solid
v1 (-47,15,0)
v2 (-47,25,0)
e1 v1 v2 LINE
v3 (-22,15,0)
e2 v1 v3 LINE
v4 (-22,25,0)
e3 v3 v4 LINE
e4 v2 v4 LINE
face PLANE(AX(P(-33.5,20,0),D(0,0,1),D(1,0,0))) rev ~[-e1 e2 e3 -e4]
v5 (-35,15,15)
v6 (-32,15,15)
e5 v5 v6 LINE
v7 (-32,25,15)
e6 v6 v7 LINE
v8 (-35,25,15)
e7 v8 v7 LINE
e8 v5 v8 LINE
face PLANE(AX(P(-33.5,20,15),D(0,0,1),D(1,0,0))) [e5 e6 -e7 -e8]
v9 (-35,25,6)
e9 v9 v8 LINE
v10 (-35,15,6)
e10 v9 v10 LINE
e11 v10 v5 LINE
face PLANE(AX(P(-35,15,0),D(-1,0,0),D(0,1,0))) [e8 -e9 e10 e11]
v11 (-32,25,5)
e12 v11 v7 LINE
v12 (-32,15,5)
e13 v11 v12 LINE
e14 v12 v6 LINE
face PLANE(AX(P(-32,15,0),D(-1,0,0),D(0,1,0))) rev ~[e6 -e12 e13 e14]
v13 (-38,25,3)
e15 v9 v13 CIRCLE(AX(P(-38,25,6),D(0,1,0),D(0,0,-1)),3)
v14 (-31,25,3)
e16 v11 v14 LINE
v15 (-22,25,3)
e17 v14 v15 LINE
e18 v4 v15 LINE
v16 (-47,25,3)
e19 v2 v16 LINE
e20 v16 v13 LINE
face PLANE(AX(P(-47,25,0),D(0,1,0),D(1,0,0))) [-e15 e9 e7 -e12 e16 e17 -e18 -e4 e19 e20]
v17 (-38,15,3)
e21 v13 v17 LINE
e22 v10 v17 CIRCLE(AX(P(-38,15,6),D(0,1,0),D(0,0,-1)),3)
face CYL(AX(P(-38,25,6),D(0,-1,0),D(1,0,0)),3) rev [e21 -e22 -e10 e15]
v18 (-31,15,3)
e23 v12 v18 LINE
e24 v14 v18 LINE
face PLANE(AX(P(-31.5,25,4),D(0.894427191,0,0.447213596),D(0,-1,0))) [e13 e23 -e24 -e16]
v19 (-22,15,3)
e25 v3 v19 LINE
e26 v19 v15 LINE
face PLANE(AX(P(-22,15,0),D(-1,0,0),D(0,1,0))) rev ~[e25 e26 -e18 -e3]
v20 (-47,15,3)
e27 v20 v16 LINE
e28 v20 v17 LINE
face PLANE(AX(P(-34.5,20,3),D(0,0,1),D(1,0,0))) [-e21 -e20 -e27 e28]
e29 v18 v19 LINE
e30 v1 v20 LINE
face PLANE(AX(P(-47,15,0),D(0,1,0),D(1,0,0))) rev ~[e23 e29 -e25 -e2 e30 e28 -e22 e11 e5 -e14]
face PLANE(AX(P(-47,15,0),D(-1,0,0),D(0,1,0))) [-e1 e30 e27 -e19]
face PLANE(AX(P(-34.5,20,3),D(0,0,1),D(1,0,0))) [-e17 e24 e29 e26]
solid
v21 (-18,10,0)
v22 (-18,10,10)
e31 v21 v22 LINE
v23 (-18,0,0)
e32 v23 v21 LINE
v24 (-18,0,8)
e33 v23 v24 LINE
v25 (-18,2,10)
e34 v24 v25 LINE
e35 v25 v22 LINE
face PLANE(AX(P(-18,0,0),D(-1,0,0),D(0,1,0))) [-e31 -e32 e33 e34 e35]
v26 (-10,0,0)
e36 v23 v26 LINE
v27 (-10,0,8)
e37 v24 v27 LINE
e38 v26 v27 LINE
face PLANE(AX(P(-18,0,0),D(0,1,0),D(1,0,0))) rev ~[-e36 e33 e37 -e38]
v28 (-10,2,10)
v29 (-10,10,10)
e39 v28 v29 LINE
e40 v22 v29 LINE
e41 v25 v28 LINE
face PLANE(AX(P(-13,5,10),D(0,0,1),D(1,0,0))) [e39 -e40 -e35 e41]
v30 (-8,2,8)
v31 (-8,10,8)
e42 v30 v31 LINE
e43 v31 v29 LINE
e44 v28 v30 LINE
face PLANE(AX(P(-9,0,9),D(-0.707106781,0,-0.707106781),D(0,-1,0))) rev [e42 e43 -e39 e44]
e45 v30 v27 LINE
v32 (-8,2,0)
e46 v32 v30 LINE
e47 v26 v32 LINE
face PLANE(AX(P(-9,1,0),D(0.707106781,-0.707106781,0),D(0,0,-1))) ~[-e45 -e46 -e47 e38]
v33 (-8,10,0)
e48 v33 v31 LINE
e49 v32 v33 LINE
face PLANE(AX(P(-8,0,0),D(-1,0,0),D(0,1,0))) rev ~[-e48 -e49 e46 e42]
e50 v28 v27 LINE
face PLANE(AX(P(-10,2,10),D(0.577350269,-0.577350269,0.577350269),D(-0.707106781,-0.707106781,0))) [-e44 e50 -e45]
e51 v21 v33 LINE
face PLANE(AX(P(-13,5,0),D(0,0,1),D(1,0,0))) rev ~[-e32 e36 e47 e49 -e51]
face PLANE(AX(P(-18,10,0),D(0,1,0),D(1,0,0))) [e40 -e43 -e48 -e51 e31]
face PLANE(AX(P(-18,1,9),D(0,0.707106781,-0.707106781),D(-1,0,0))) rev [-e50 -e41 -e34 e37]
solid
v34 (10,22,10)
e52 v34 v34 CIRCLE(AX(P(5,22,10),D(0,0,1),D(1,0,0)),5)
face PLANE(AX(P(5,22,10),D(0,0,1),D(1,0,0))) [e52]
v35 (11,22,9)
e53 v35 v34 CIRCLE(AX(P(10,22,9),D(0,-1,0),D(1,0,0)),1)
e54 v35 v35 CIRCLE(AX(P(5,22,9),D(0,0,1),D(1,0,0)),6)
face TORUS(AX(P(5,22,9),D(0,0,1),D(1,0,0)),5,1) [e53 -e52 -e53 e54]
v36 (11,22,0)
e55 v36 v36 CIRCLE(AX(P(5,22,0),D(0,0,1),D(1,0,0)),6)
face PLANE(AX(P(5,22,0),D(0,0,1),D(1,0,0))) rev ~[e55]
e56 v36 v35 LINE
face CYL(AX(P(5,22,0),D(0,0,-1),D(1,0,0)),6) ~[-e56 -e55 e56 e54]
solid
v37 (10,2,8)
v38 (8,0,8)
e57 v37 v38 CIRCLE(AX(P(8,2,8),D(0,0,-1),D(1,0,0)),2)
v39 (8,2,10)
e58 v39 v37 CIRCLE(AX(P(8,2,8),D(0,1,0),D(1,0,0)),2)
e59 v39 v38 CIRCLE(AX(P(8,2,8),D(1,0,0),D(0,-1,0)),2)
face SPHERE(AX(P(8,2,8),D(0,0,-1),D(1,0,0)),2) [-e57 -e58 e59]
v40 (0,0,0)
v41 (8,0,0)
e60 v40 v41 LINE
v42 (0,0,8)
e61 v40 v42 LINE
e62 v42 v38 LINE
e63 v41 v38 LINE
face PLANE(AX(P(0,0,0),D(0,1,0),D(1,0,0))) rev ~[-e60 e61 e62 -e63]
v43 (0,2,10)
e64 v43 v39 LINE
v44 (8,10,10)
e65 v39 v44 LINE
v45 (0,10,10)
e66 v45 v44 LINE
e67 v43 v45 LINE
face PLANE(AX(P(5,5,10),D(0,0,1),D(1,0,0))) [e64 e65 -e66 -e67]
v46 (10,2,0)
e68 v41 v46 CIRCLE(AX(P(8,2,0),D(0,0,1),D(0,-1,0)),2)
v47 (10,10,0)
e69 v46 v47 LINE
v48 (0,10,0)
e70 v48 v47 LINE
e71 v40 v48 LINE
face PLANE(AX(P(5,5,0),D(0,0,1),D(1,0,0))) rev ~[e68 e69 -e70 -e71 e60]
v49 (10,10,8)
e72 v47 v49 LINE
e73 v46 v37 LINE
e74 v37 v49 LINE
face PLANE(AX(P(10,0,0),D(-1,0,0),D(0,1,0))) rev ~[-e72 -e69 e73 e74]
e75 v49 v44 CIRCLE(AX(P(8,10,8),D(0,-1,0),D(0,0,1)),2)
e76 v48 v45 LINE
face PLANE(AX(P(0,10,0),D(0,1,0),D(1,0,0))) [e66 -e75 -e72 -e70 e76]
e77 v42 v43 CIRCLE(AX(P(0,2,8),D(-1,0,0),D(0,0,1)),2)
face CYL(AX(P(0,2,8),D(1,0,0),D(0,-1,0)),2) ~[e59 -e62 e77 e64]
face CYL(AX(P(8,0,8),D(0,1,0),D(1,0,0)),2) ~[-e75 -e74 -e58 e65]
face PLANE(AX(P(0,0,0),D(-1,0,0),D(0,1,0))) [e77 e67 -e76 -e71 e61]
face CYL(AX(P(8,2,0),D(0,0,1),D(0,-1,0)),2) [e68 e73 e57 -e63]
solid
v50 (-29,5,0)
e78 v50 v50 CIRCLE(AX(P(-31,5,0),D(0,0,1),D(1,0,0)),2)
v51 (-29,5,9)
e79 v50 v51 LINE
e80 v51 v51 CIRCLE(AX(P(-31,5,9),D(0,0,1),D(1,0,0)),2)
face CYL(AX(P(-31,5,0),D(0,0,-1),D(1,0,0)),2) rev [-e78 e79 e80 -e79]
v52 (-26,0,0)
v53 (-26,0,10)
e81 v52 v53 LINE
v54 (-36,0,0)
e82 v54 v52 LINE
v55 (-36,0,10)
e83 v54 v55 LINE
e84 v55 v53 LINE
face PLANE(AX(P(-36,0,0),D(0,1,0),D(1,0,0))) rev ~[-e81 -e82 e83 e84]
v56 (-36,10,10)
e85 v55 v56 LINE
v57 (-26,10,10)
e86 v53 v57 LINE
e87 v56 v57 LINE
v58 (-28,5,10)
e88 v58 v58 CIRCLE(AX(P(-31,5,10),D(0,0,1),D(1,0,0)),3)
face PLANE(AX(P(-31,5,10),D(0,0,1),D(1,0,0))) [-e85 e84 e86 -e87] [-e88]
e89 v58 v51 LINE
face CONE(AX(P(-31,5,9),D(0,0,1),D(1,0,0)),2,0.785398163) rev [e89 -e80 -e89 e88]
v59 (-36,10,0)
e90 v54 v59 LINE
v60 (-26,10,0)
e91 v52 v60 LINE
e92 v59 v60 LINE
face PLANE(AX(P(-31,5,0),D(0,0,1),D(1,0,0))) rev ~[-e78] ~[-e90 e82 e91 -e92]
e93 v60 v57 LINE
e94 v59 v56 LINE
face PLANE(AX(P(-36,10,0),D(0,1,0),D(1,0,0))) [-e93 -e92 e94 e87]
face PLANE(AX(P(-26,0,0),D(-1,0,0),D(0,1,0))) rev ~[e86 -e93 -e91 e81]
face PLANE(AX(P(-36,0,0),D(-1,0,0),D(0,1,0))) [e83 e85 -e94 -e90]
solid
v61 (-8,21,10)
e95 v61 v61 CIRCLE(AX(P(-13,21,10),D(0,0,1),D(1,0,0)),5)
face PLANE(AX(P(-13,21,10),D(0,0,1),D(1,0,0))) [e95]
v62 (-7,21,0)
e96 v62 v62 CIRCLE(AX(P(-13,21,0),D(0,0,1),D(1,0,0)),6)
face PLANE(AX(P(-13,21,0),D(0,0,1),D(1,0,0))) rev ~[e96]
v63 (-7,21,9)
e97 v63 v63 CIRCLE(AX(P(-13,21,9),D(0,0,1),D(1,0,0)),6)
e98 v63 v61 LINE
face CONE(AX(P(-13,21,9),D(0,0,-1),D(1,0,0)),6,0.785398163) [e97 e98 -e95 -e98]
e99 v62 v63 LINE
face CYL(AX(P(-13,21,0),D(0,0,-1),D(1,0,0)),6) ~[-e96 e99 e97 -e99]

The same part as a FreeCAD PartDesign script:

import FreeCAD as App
import Part
import Sketcher

V = App.Vector
Q = App.Units.Quantity


def edges_at(feature, points):
    """Names of the edges that pass closest to the given points."""
    edges = feature.Shape.Edges
    near = lambda p: min(range(len(edges)), key=lambda i: edges[i].distToShape(Part.Vertex(*p))[0])
    return sorted({f"Edge{near(p) + 1}" for p in points})


def add_polygon(sketch, points):
    """Adds a closed chain of lines whose ends are joined by coincident constraints."""
    first, n = sketch.GeometryCount, len(points)
    for a, b in zip(points, points[1:] + points[:1]):
        sketch.addGeometry(Part.LineSegment(App.Vector(*a, 0), App.Vector(*b, 0)), False)
    for i in range(n):
        sketch.addConstraint(Sketcher.Constraint("Coincident", first + i, 2, first + (i + 1) % n, 1))

doc = App.newDocument("Part")
body = doc.addObject("PartDesign::Body", "Body")

sketch1 = body.newObject("Sketcher::SketchObject", "Sketch")
sketch1.AttachmentSupport = (doc.getObject("XY_Plane"), [""])
sketch1.MapMode = "FlatFace"
add_polygon(sketch1, [(0, 10), (0, 0), (10, 0), (10, 10)])
sketch1.addConstraint([
    Sketcher.Constraint("Vertical", 0),
    Sketcher.Constraint("Horizontal", 1),
    Sketcher.Constraint("Vertical", 2),
    Sketcher.Constraint("Horizontal", 3),
    Sketcher.Constraint("Coincident", 0, 2, -1, 1),
    Sketcher.Constraint("Equal", 3, 0),
    Sketcher.Constraint("DistanceX", 1, 1, 1, 2, Q("10 mm")),
])
pad1 = body.newObject("PartDesign::Pad", "Pad")
pad1.Profile = sketch1
pad1.Length = 10
doc.recompute()

fillet = body.newObject("PartDesign::Fillet", "Fillet")
fillet.Base = (pad1, edges_at(pad1, [(10, 0, 5), (10, 5, 10), (5, 0, 10)]))
fillet.Radius = 2
body2 = doc.addObject("PartDesign::Body", "Body001")

sketch2 = body2.newObject("Sketcher::SketchObject", "Sketch001")
sketch2.AttachmentSupport = (doc.getObject("XY_Plane001"), [""])
sketch2.MapMode = "FlatFace"
add_polygon(sketch2, [(-18, 10), (-18, 0), (-8, 0), (-8, 10)])
sketch2.addConstraint([
    Sketcher.Constraint("Vertical", 0),
    Sketcher.Constraint("Horizontal", 1),
    Sketcher.Constraint("Vertical", 2),
    Sketcher.Constraint("Horizontal", 3),
    Sketcher.Constraint("PointOnObject", 0, 2, -1),
    Sketcher.Constraint("Equal", 3, 0),
    Sketcher.Constraint("DistanceX", 1, 1, 1, 2, Q("10 mm")),
    Sketcher.Constraint("DistanceX", 0, 2, -1, 1, Q("18 mm")),
])
pad2 = body2.newObject("PartDesign::Pad", "Pad001")
pad2.Profile = sketch2
pad2.Length = 10
doc.recompute()

chamfer = body2.newObject("PartDesign::Chamfer", "Chamfer")
chamfer.Base = (pad2, edges_at(pad2, [(-8, 0, 5), (-8, 5, 10), (-13, 0, 10)]))
chamfer.Size = 2
body3 = doc.addObject("PartDesign::Body", "Body002")

sketch3 = body3.newObject("Sketcher::SketchObject", "Sketch002")
sketch3.AttachmentSupport = (doc.getObject("XY_Plane002"), [""])
sketch3.MapMode = "FlatFace"
sketch3.addGeometry(Part.Circle(V(-31, 5, 0), V(0, 0, 1), 2), False)
sketch3.addConstraint([
    Sketcher.Constraint("Diameter", 0, Q("4 mm")),
    Sketcher.Constraint("DistanceX", 0, 3, -1, 1, Q("31 mm")),
    Sketcher.Constraint("DistanceY", -1, 1, 0, 3, Q("5 mm")),
])
pad3 = body3.newObject("PartDesign::Pad", "Pad002")
pad3.Profile = sketch3
pad3.Length = 10
body4 = doc.addObject("PartDesign::Body", "Body003")

sketch4 = body4.newObject("Sketcher::SketchObject", "Sketch003")
sketch4.AttachmentSupport = (doc.getObject("XY_Plane003"), [""])
sketch4.MapMode = "FlatFace"
add_polygon(sketch4, [(-36, 10), (-36, 0), (-26, 0), (-26, 10)])
sketch4.addConstraint([
    Sketcher.Constraint("Vertical", 0),
    Sketcher.Constraint("Horizontal", 1),
    Sketcher.Constraint("Vertical", 2),
    Sketcher.Constraint("Horizontal", 3),
    Sketcher.Constraint("PointOnObject", 0, 2, -1),
    Sketcher.Constraint("Equal", 3, 0),
    Sketcher.Constraint("DistanceX", 1, 1, 1, 2, Q("10 mm")),
    Sketcher.Constraint("DistanceX", 0, 2, -1, 1, Q("36 mm")),
])
pad4 = body4.newObject("PartDesign::Pad", "Pad003")
pad4.Profile = sketch4
pad4.Length = 10
doc.recompute()

boolean = body4.newObject("PartDesign::Boolean", "Boolean")
boolean.Type = "Cut"
boolean.addObjects([body3])
doc.recompute()

chamfer2 = body4.newObject("PartDesign::Chamfer", "Chamfer001")
chamfer2.Base = (boolean, edges_at(boolean, [(-33, 5, 10)]))
chamfer2.Size = 1
body5 = doc.addObject("PartDesign::Body", "Body004")

sketch5 = body5.newObject("Sketcher::SketchObject", "Sketch004")
sketch5.AttachmentSupport = (doc.getObject("XY_Plane004"), [""])
sketch5.MapMode = "FlatFace"
sketch5.addGeometry(Part.Circle(V(5, 22, 0), V(0, 0, 1), 6), False)
sketch5.addConstraint([
    Sketcher.Constraint("Diameter", 0, Q("12 mm")),
    Sketcher.Constraint("DistanceX", -1, 1, 0, 3, Q("5 mm")),
    Sketcher.Constraint("DistanceY", -1, 1, 0, 3, Q("22 mm")),
])
pad5 = body5.newObject("PartDesign::Pad", "Pad004")
pad5.Profile = sketch5
pad5.Length = 10
doc.recompute()

fillet2 = body5.newObject("PartDesign::Fillet", "Fillet001")
fillet2.Base = (pad5, edges_at(pad5, [(-1, 22, 10)]))
fillet2.Radius = 1
body6 = doc.addObject("PartDesign::Body", "Body005")

sketch6 = body6.newObject("Sketcher::SketchObject", "Sketch005")
sketch6.AttachmentSupport = (doc.getObject("XY_Plane005"), [""])
sketch6.MapMode = "FlatFace"
sketch6.addGeometry(Part.Circle(V(-13, 21, 0), V(0, 0, 1), 6), False)
sketch6.addConstraint([
    Sketcher.Constraint("Diameter", 0, Q("12 mm")),
    Sketcher.Constraint("DistanceX", 0, 3, -1, 1, Q("13 mm")),
    Sketcher.Constraint("DistanceY", -1, 1, 0, 3, Q("21 mm")),
])
pad6 = body6.newObject("PartDesign::Pad", "Pad005")
pad6.Profile = sketch6
pad6.Length = 10
doc.recompute()

chamfer3 = body6.newObject("PartDesign::Chamfer", "Chamfer002")
chamfer3.Base = (pad6, edges_at(pad6, [(-19, 21, 10)]))
chamfer3.Size = 1
body7 = doc.addObject("PartDesign::Body", "Body006")

sketch7 = body7.newObject("Sketcher::SketchObject", "Sketch006")
sketch7.AttachmentSupport = (doc.getObject("XY_Plane006"), [""])
sketch7.MapMode = "FlatFace"
add_polygon(sketch7, [(-35, 25), (-35, 15), (-32, 15), (-32, 25)])
sketch7.addConstraint([
    Sketcher.Constraint("Vertical", 0),
    Sketcher.Constraint("Horizontal", 1),
    Sketcher.Constraint("Vertical", 2),
    Sketcher.Constraint("Horizontal", 3),
    Sketcher.Constraint("DistanceX", 1, 1, 1, 2, Q("3 mm")),
    Sketcher.Constraint("DistanceY", 0, 2, 0, 1, Q("10 mm")),
    Sketcher.Constraint("DistanceX", 0, 2, -1, 1, Q("35 mm")),
    Sketcher.Constraint("DistanceY", -1, 1, 0, 2, Q("15 mm")),
])
pad7 = body7.newObject("PartDesign::Pad", "Pad006")
pad7.Profile = sketch7
pad7.Length = 15
body8 = doc.addObject("PartDesign::Body", "Body007")

sketch8 = body8.newObject("Sketcher::SketchObject", "Sketch007")
sketch8.AttachmentSupport = (doc.getObject("XY_Plane007"), [""])
sketch8.MapMode = "FlatFace"
add_polygon(sketch8, [(-47, 25), (-47, 15), (-22, 15), (-22, 25)])
sketch8.addConstraint([
    Sketcher.Constraint("Vertical", 0),
    Sketcher.Constraint("Horizontal", 1),
    Sketcher.Constraint("Vertical", 2),
    Sketcher.Constraint("Horizontal", 3),
    Sketcher.Constraint("DistanceX", 1, 1, 1, 2, Q("25 mm")),
    Sketcher.Constraint("DistanceY", 0, 2, 0, 1, Q("10 mm")),
    Sketcher.Constraint("DistanceX", 0, 2, -1, 1, Q("47 mm")),
    Sketcher.Constraint("DistanceY", -1, 1, 0, 2, Q("15 mm")),
])
pad8 = body8.newObject("PartDesign::Pad", "Pad007")
pad8.Profile = sketch8
pad8.Length = 3
doc.recompute()

boolean2 = body8.newObject("PartDesign::Boolean", "Boolean001")
boolean2.Type = "Fuse"
boolean2.addObjects([body7])
doc.recompute()

chamfer4 = body8.newObject("PartDesign::Chamfer", "Chamfer003")
chamfer4.Base = (boolean2, edges_at(boolean2, [(-32, 20, 3)]))
chamfer4.ChamferType = "Two distances"
chamfer4.Size = 2
chamfer4.Size2 = 1
doc.recompute()

fillet3 = body8.newObject("PartDesign::Fillet", "Fillet002")
fillet3.Base = (chamfer4, edges_at(chamfer4, [(-35, 20, 3)]))
fillet3.Radius = 3

doc.recompute()
